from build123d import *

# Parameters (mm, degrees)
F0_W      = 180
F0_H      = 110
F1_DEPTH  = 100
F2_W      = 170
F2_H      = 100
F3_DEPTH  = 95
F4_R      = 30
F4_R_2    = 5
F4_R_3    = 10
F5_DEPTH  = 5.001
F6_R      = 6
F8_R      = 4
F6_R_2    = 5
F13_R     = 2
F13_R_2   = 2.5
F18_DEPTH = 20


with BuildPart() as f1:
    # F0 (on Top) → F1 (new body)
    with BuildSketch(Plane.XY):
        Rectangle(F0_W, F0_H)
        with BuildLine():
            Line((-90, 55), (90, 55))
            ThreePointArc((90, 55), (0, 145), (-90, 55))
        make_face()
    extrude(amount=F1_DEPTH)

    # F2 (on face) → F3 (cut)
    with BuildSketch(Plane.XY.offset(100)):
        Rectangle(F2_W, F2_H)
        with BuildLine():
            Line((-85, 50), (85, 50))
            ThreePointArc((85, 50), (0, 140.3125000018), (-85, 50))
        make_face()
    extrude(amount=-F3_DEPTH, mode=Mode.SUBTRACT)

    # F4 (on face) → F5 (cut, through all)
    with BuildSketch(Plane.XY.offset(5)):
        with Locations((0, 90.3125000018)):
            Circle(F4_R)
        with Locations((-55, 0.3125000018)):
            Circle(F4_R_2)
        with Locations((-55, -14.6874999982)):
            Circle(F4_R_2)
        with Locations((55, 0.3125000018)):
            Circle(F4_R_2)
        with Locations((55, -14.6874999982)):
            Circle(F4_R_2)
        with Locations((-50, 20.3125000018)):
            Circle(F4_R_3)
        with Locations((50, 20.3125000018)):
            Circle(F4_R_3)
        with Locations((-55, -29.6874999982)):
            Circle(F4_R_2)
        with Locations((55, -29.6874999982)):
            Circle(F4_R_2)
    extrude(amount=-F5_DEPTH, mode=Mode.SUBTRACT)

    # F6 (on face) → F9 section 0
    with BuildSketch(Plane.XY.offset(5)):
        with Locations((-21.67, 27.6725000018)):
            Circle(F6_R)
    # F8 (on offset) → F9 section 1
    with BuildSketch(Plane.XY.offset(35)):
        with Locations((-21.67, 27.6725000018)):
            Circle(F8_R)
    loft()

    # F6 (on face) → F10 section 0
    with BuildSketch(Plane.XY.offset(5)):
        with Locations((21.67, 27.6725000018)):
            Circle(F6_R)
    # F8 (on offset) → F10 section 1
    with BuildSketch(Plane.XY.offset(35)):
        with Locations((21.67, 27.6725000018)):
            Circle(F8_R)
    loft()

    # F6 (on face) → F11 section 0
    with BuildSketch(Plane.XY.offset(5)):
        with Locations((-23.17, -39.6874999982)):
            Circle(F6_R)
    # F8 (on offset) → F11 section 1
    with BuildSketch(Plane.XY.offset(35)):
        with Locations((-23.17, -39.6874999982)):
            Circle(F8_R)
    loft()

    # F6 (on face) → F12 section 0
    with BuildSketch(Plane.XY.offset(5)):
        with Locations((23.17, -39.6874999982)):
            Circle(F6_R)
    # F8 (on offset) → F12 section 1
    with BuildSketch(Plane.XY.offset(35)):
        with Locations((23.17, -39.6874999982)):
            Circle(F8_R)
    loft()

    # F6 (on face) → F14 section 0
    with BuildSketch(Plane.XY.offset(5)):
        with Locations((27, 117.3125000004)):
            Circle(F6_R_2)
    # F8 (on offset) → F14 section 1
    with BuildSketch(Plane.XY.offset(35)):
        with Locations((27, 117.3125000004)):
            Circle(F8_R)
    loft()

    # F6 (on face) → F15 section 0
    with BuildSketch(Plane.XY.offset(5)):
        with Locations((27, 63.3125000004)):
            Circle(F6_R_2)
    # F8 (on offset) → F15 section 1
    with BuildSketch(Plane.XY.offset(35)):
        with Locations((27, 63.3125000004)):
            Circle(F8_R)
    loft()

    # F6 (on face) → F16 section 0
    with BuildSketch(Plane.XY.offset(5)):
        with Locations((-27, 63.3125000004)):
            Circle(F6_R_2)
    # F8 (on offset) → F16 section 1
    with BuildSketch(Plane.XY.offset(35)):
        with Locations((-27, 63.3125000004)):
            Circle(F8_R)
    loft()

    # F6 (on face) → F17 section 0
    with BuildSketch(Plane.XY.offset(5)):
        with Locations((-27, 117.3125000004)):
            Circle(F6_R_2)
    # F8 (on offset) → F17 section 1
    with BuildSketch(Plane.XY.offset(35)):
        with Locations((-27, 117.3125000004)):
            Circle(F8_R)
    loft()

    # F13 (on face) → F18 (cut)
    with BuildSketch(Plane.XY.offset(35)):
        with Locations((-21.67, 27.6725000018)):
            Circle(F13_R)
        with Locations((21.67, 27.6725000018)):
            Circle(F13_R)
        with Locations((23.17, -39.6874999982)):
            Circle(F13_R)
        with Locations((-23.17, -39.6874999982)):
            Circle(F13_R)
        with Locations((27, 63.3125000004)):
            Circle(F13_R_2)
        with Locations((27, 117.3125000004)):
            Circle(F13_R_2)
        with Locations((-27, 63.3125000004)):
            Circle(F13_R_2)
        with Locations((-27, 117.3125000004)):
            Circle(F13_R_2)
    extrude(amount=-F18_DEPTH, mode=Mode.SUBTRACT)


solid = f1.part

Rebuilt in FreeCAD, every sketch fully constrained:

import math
import FreeCAD as App
import Part
import Sketcher

V = App.Vector

doc = App.newDocument("Part")
body = doc.addObject("PartDesign::Body", "Body")

# Sketch on XY plane
sketch1 = doc.addObject("Sketcher::SketchObject", "Sketch")
body.addObject(sketch1)
sketch1.AttachmentSupport = (doc.XY_Plane, [""])
sketch1.MapMode = "FlatFace"
sketch1.addGeometry([
    Part.LineSegment(V(-90, 55, 0), V(-90, -55, 0)),
    Part.LineSegment(V(-90, -55, 0), V(90, -55, 0)),
    Part.LineSegment(V(90, -55, 0), V(90, 55, 0)),
    Part.ArcOfCircle(Part.Circle(V(0, 55, 0), V(0, 0, 1), 90), math.radians(0), math.radians(180)),
], False)
sketch1.addConstraint([
    Sketcher.Constraint("Coincident", 0, 2, 1, 1),
    Sketcher.Constraint("Coincident", 1, 2, 2, 1),
    Sketcher.Constraint("Tangent", 2, 2, 3, 1),
    Sketcher.Constraint("Tangent", 3, 2, 0, 1),
    Sketcher.Constraint("Vertical", 0),
    Sketcher.Constraint("Horizontal", 1),
    Sketcher.Constraint("Vertical", 2),
    Sketcher.Constraint("Symmetric", 0, 2, 2, 2, -1, 1),
    Sketcher.Constraint("Radius", 3, 90.0),
    Sketcher.Constraint("DistanceY", 0, 2, 0, 1, 110.0),
])
pad1 = doc.addObject("PartDesign::Pad", "Pad")
body.addObject(pad1)
pad1.Profile = sketch1
pad1.Length = 100

# Sketch on XY plane
sketch2 = doc.addObject("Sketcher::SketchObject", "Sketch001")
body.addObject(sketch2)
sketch2.AttachmentSupport = (doc.XY_Plane, [""])
sketch2.MapMode = "FlatFace"
sketch2.AttachmentOffset = App.Placement(V(0, 0, 100), App.Rotation())
sketch2.addGeometry([
    Part.LineSegment(V(-85, 50, 0), V(-85, -50, 0)),
    Part.LineSegment(V(-85, -50, 0), V(85, -50, 0)),
    Part.LineSegment(V(85, -50, 0), V(85, 50, 0)),
    Part.ArcOfCircle(Part.Circle(V(0, 55.15625, 0), V(0, 0, 1), 85.15625), math.radians(-3.471409), math.radians(183.471409)),
], False)
sketch2.addConstraint([
    Sketcher.Constraint("Coincident", 0, 2, 1, 1),
    Sketcher.Constraint("Coincident", 1, 2, 2, 1),
    Sketcher.Constraint("Coincident", 2, 2, 3, 1),
    Sketcher.Constraint("Coincident", 3, 2, 0, 1),
    Sketcher.Constraint("Vertical", 0),
    Sketcher.Constraint("Horizontal", 1),
    Sketcher.Constraint("Vertical", 2),
    Sketcher.Constraint("Symmetric", 0, 2, 2, 2, -1, 1),
    Sketcher.Constraint("PointOnObject", 3, 3, -2),
    Sketcher.Constraint("DistanceX", 1, 1, 1, 2, 170.0),
    Sketcher.Constraint("DistanceY", 0, 2, 0, 1, 100.0),
    Sketcher.Constraint("Radius", 3, 85.15625),
])
pocket1 = doc.addObject("PartDesign::Pocket", "Pocket")
body.addObject(pocket1)
pocket1.Profile = sketch2
pocket1.Length = 95

# Sketch on XY plane
sketch3 = doc.addObject("Sketcher::SketchObject", "Sketch002")
body.addObject(sketch3)
sketch3.AttachmentSupport = (doc.XY_Plane, [""])
sketch3.MapMode = "FlatFace"
sketch3.AttachmentOffset = App.Placement(V(0, 0, 5), App.Rotation())
sketch3.addGeometry([
    Part.Circle(V(0, 90.3125, 0), V(0, 0, 1), 30),  # 0
    Part.Circle(V(-55, 0.3125, 0), V(0, 0, 1), 5),  # 1
    Part.Circle(V(-55, -14.6875, 0), V(0, 0, 1), 5),  # 2
    Part.Circle(V(55, 0.3125, 0), V(0, 0, 1), 5),  # 3
    Part.Circle(V(55, -14.6875, 0), V(0, 0, 1), 5),  # 4
    Part.Circle(V(-50, 20.3125, 0), V(0, 0, 1), 10),  # 5
    Part.Circle(V(50, 20.3125, 0), V(0, 0, 1), 10),  # 6
    Part.Circle(V(-55, -29.6875, 0), V(0, 0, 1), 5),  # 7
    Part.Circle(V(55, -29.6875, 0), V(0, 0, 1), 5),  # 8
], False)
sketch3.addConstraint([
    Sketcher.Constraint("Equal", 1, 2),
    Sketcher.Constraint("Equal", 2, 3),
    Sketcher.Constraint("Equal", 3, 4),
    Sketcher.Constraint("Equal", 5, 6),
    Sketcher.Constraint("Equal", 4, 7),
    Sketcher.Constraint("Equal", 7, 8),
    Sketcher.Constraint("Symmetric", 1, 3, 3, 3, -2),
    Sketcher.Constraint("Symmetric", 2, 3, 4, 3, -2),
    Sketcher.Constraint("Symmetric", 5, 3, 6, 3, -2),
    Sketcher.Constraint("Symmetric", 7, 3, 8, 3, -2),
    Sketcher.Constraint("PointOnObject", 0, 3, -2),
    Sketcher.Constraint("Vertical", 1, 3, 2, 3),
    Sketcher.Constraint("Vertical", 2, 3, 7, 3),
    Sketcher.Constraint("Diameter", 0, 60.0),
    Sketcher.Constraint("Diameter", 1, 10.0),
    Sketcher.Constraint("Diameter", 5, 20.0),
    Sketcher.Constraint("DistanceX", 1, 3, -1, 1, 55.0),
    Sketcher.Constraint("DistanceX", 5, 3, -1, 1, 50.0),
    Sketcher.Constraint("DistanceY", 1, 3, 0, 3, 90.0),
    Sketcher.Constraint("DistanceY", 2, 3, 1, 3, 15.0),
    Sketcher.Constraint("DistanceY", 1, 3, 5, 3, 20.0),
    Sketcher.Constraint("DistanceY", 7, 3, 2, 3, 15.0),
    Sketcher.Constraint("DistanceY", -1, 1, 0, 3, 90.3125),
])
pocket2 = doc.addObject("PartDesign::Pocket", "Pocket001")
body.addObject(pocket2)
pocket2.Profile = sketch3
pocket2.Type = "ThroughAll"

# Sketch on XY plane
sketch4 = doc.addObject("Sketcher::SketchObject", "Sketch003")
body.addObject(sketch4)
sketch4.AttachmentSupport = (doc.XY_Plane, [""])
sketch4.MapMode = "FlatFace"
sketch4.AttachmentOffset = App.Placement(V(0, 0, 5), App.Rotation())
sketch4.addGeometry(Part.Circle(V(-21.67, 27.6725, 0), V(0, 0, 1), 6), False)
sketch4.addConstraint([
    Sketcher.Constraint("Diameter", 0, 12.0),
    Sketcher.Constraint("DistanceX", 0, 3, -1, 1, 21.67),
    Sketcher.Constraint("DistanceY", -1, 1, 0, 3, 27.6725),
])

# Sketch on XY plane
sketch5 = doc.addObject("Sketcher::SketchObject", "Sketch004")
body.addObject(sketch5)
sketch5.AttachmentSupport = (doc.XY_Plane, [""])
sketch5.MapMode = "FlatFace"
sketch5.AttachmentOffset = App.Placement(V(0, 0, 35), App.Rotation())
sketch5.addGeometry(Part.Circle(V(-21.67, 27.6725, 0), V(0, 0, 1), 4), False)
sketch5.addConstraint([
    Sketcher.Constraint("Diameter", 0, 8.0),
    Sketcher.Constraint("DistanceX", 0, 3, -1, 1, 21.67),
    Sketcher.Constraint("DistanceY", -1, 1, 0, 3, 27.6725),
])

additiveloft = doc.addObject("PartDesign::AdditiveLoft", "AdditiveLoft")
body.addObject(additiveloft)
additiveloft.Profile = sketch4
additiveloft.Sections = [sketch5]

# Sketch on XY plane
sketch6 = doc.addObject("Sketcher::SketchObject", "Sketch005")
body.addObject(sketch6)
sketch6.AttachmentSupport = (doc.XY_Plane, [""])
sketch6.MapMode = "FlatFace"
sketch6.AttachmentOffset = App.Placement(V(0, 0, 5), App.Rotation())
sketch6.addGeometry(Part.Circle(V(21.67, 27.6725, 0), V(0, 0, 1), 6), False)
sketch6.addConstraint([
    Sketcher.Constraint("Diameter", 0, 12.0),
    Sketcher.Constraint("DistanceX", -1, 1, 0, 3, 21.67),
    Sketcher.Constraint("DistanceY", -1, 1, 0, 3, 27.6725),
])

# Sketch on XY plane
sketch7 = doc.addObject("Sketcher::SketchObject", "Sketch006")
body.addObject(sketch7)
sketch7.AttachmentSupport = (doc.XY_Plane, [""])
sketch7.MapMode = "FlatFace"
sketch7.AttachmentOffset = App.Placement(V(0, 0, 35), App.Rotation())
sketch7.addGeometry(Part.Circle(V(21.67, 27.6725, 0), V(0, 0, 1), 4), False)
sketch7.addConstraint([
    Sketcher.Constraint("Diameter", 0, 8.0),
    Sketcher.Constraint("DistanceX", -1, 1, 0, 3, 21.67),
    Sketcher.Constraint("DistanceY", -1, 1, 0, 3, 27.6725),
])

additiveloft2 = doc.addObject("PartDesign::AdditiveLoft", "AdditiveLoft001")
body.addObject(additiveloft2)
additiveloft2.Profile = sketch6
additiveloft2.Sections = [sketch7]

# Sketch on XY plane
sketch8 = doc.addObject("Sketcher::SketchObject", "Sketch007")
body.addObject(sketch8)
sketch8.AttachmentSupport = (doc.XY_Plane, [""])
sketch8.MapMode = "FlatFace"
sketch8.AttachmentOffset = App.Placement(V(0, 0, 5), App.Rotation())
sketch8.addGeometry(Part.Circle(V(-23.17, -39.6875, 0), V(0, 0, 1), 6), False)
sketch8.addConstraint([
    Sketcher.Constraint("Diameter", 0, 12.0),
    Sketcher.Constraint("DistanceX", 0, 3, -1, 1, 23.17),
    Sketcher.Constraint("DistanceY", 0, 3, -1, 1, 39.6875),
])

# Sketch on XY plane
sketch9 = doc.addObject("Sketcher::SketchObject", "Sketch008")
body.addObject(sketch9)
sketch9.AttachmentSupport = (doc.XY_Plane, [""])
sketch9.MapMode = "FlatFace"
sketch9.AttachmentOffset = App.Placement(V(0, 0, 35), App.Rotation())
sketch9.addGeometry(Part.Circle(V(-23.17, -39.6875, 0), V(0, 0, 1), 4), False)
sketch9.addConstraint([
    Sketcher.Constraint("Diameter", 0, 8.0),
    Sketcher.Constraint("DistanceX", 0, 3, -1, 1, 23.17),
    Sketcher.Constraint("DistanceY", 0, 3, -1, 1, 39.6875),
])

additiveloft3 = doc.addObject("PartDesign::AdditiveLoft", "AdditiveLoft002")
body.addObject(additiveloft3)
additiveloft3.Profile = sketch8
additiveloft3.Sections = [sketch9]

# Sketch on XY plane
sketch10 = doc.addObject("Sketcher::SketchObject", "Sketch009")
body.addObject(sketch10)
sketch10.AttachmentSupport = (doc.XY_Plane, [""])
sketch10.MapMode = "FlatFace"
sketch10.AttachmentOffset = App.Placement(V(0, 0, 5), App.Rotation())
sketch10.addGeometry(Part.Circle(V(23.17, -39.6875, 0), V(0, 0, 1), 6), False)
sketch10.addConstraint([
    Sketcher.Constraint("Diameter", 0, 12.0),
    Sketcher.Constraint("DistanceX", -1, 1, 0, 3, 23.17),
    Sketcher.Constraint("DistanceY", 0, 3, -1, 1, 39.6875),
])

# Sketch on XY plane
sketch11 = doc.addObject("Sketcher::SketchObject", "Sketch010")
body.addObject(sketch11)
sketch11.AttachmentSupport = (doc.XY_Plane, [""])
sketch11.MapMode = "FlatFace"
sketch11.AttachmentOffset = App.Placement(V(0, 0, 35), App.Rotation())
sketch11.addGeometry(Part.Circle(V(23.17, -39.6875, 0), V(0, 0, 1), 4), False)
sketch11.addConstraint([
    Sketcher.Constraint("Diameter", 0, 8.0),
    Sketcher.Constraint("DistanceX", -1, 1, 0, 3, 23.17),
    Sketcher.Constraint("DistanceY", 0, 3, -1, 1, 39.6875),
])

additiveloft4 = doc.addObject("PartDesign::AdditiveLoft", "AdditiveLoft003")
body.addObject(additiveloft4)
additiveloft4.Profile = sketch10
additiveloft4.Sections = [sketch11]

# Sketch on XY plane
sketch12 = doc.addObject("Sketcher::SketchObject", "Sketch011")
body.addObject(sketch12)
sketch12.AttachmentSupport = (doc.XY_Plane, [""])
sketch12.MapMode = "FlatFace"
sketch12.AttachmentOffset = App.Placement(V(0, 0, 5), App.Rotation())
sketch12.addGeometry(Part.Circle(V(27, 117.3125, 0), V(0, 0, 1), 5), False)
sketch12.addConstraint([
    Sketcher.Constraint("Diameter", 0, 10.0),
    Sketcher.Constraint("DistanceX", -1, 1, 0, 3, 27.0),
    Sketcher.Constraint("DistanceY", -1, 1, 0, 3, 117.3125),
])

# Sketch on XY plane
sketch13 = doc.addObject("Sketcher::SketchObject", "Sketch012")
body.addObject(sketch13)
sketch13.AttachmentSupport = (doc.XY_Plane, [""])
sketch13.MapMode = "FlatFace"
sketch13.AttachmentOffset = App.Placement(V(0, 0, 35), App.Rotation())
sketch13.addGeometry(Part.Circle(V(27, 117.3125, 0), V(0, 0, 1), 4), False)
sketch13.addConstraint([
    Sketcher.Constraint("Diameter", 0, 8.0),
    Sketcher.Constraint("DistanceX", -1, 1, 0, 3, 27.0),
    Sketcher.Constraint("DistanceY", -1, 1, 0, 3, 117.3125),
])

additiveloft5 = doc.addObject("PartDesign::AdditiveLoft", "AdditiveLoft004")
body.addObject(additiveloft5)
additiveloft5.Profile = sketch12
additiveloft5.Sections = [sketch13]

# Sketch on XY plane
sketch14 = doc.addObject("Sketcher::SketchObject", "Sketch013")
body.addObject(sketch14)
sketch14.AttachmentSupport = (doc.XY_Plane, [""])
sketch14.MapMode = "FlatFace"
sketch14.AttachmentOffset = App.Placement(V(0, 0, 5), App.Rotation())
sketch14.addGeometry(Part.Circle(V(27, 63.3125, 0), V(0, 0, 1), 5), False)
sketch14.addConstraint([
    Sketcher.Constraint("Diameter", 0, 10.0),
    Sketcher.Constraint("DistanceX", -1, 1, 0, 3, 27.0),
    Sketcher.Constraint("DistanceY", -1, 1, 0, 3, 63.3125),
])

# Sketch on XY plane
sketch15 = doc.addObject("Sketcher::SketchObject", "Sketch014")
body.addObject(sketch15)
sketch15.AttachmentSupport = (doc.XY_Plane, [""])
sketch15.MapMode = "FlatFace"
sketch15.AttachmentOffset = App.Placement(V(0, 0, 35), App.Rotation())
sketch15.addGeometry(Part.Circle(V(27, 63.3125, 0), V(0, 0, 1), 4), False)
sketch15.addConstraint([
    Sketcher.Constraint("Diameter", 0, 8.0),
    Sketcher.Constraint("DistanceX", -1, 1, 0, 3, 27.0),
    Sketcher.Constraint("DistanceY", -1, 1, 0, 3, 63.3125),
])

additiveloft6 = doc.addObject("PartDesign::AdditiveLoft", "AdditiveLoft005")
body.addObject(additiveloft6)
additiveloft6.Profile = sketch14
additiveloft6.Sections = [sketch15]

# Sketch on XY plane
sketch16 = doc.addObject("Sketcher::SketchObject", "Sketch015")
body.addObject(sketch16)
sketch16.AttachmentSupport = (doc.XY_Plane, [""])
sketch16.MapMode = "FlatFace"
sketch16.AttachmentOffset = App.Placement(V(0, 0, 5), App.Rotation())
sketch16.addGeometry(Part.Circle(V(-27, 63.3125, 0), V(0, 0, 1), 5), False)
sketch16.addConstraint([
    Sketcher.Constraint("Diameter", 0, 10.0),
    Sketcher.Constraint("DistanceX", 0, 3, -1, 1, 27.0),
    Sketcher.Constraint("DistanceY", -1, 1, 0, 3, 63.3125),
])

# Sketch on XY plane
sketch17 = doc.addObject("Sketcher::SketchObject", "Sketch016")
body.addObject(sketch17)
sketch17.AttachmentSupport = (doc.XY_Plane, [""])
sketch17.MapMode = "FlatFace"
sketch17.AttachmentOffset = App.Placement(V(0, 0, 35), App.Rotation())
sketch17.addGeometry(Part.Circle(V(-27, 63.3125, 0), V(0, 0, 1), 4), False)
sketch17.addConstraint([
    Sketcher.Constraint("Diameter", 0, 8.0),
    Sketcher.Constraint("DistanceX", 0, 3, -1, 1, 27.0),
    Sketcher.Constraint("DistanceY", -1, 1, 0, 3, 63.3125),
])

additiveloft7 = doc.addObject("PartDesign::AdditiveLoft", "AdditiveLoft006")
body.addObject(additiveloft7)
additiveloft7.Profile = sketch16
additiveloft7.Sections = [sketch17]

# Sketch on XY plane
sketch18 = doc.addObject("Sketcher::SketchObject", "Sketch017")
body.addObject(sketch18)
sketch18.AttachmentSupport = (doc.XY_Plane, [""])
sketch18.MapMode = "FlatFace"
sketch18.AttachmentOffset = App.Placement(V(0, 0, 5), App.Rotation())
sketch18.addGeometry(Part.Circle(V(-27, 117.3125, 0), V(0, 0, 1), 5), False)
sketch18.addConstraint([
    Sketcher.Constraint("Diameter", 0, 10.0),
    Sketcher.Constraint("DistanceX", 0, 3, -1, 1, 27.0),
    Sketcher.Constraint("DistanceY", -1, 1, 0, 3, 117.3125),
])

# Sketch on XY plane
sketch19 = doc.addObject("Sketcher::SketchObject", "Sketch018")
body.addObject(sketch19)
sketch19.AttachmentSupport = (doc.XY_Plane, [""])
sketch19.MapMode = "FlatFace"
sketch19.AttachmentOffset = App.Placement(V(0, 0, 35), App.Rotation())
sketch19.addGeometry(Part.Circle(V(-27, 117.3125, 0), V(0, 0, 1), 4), False)
sketch19.addConstraint([
    Sketcher.Constraint("Diameter", 0, 8.0),
    Sketcher.Constraint("DistanceX", 0, 3, -1, 1, 27.0),
    Sketcher.Constraint("DistanceY", -1, 1, 0, 3, 117.3125),
])

additiveloft8 = doc.addObject("PartDesign::AdditiveLoft", "AdditiveLoft007")
body.addObject(additiveloft8)
additiveloft8.Profile = sketch18
additiveloft8.Sections = [sketch19]

# Sketch on XY plane
sketch20 = doc.addObject("Sketcher::SketchObject", "Sketch019")
body.addObject(sketch20)
sketch20.AttachmentSupport = (doc.XY_Plane, [""])
sketch20.MapMode = "FlatFace"
sketch20.AttachmentOffset = App.Placement(V(0, 0, 35), App.Rotation())
sketch20.addGeometry([
    Part.Circle(V(-21.67, 27.6725, 0), V(0, 0, 1), 2),  # 0
    Part.Circle(V(21.67, 27.6725, 0), V(0, 0, 1), 2),  # 1
    Part.Circle(V(23.17, -39.6875, 0), V(0, 0, 1), 2),  # 2
    Part.Circle(V(-23.17, -39.6875, 0), V(0, 0, 1), 2),  # 3
    Part.Circle(V(27, 63.3125, 0), V(0, 0, 1), 2.5),  # 4
    Part.Circle(V(27, 117.3125, 0), V(0, 0, 1), 2.5),  # 5
    Part.Circle(V(-27, 63.3125, 0), V(0, 0, 1), 2.5),  # 6
    Part.Circle(V(-27, 117.3125, 0), V(0, 0, 1), 2.5),  # 7
], False)
sketch20.addConstraint([
    Sketcher.Constraint("Equal", 0, 1),
    Sketcher.Constraint("Equal", 1, 2),
    Sketcher.Constraint("Equal", 2, 3),
    Sketcher.Constraint("Equal", 4, 5),
    Sketcher.Constraint("Equal", 5, 6),
    Sketcher.Constraint("Equal", 6, 7),
    Sketcher.Constraint("Symmetric", 0, 3, 1, 3, -2),
    Sketcher.Constraint("Symmetric", 2, 3, 3, 3, -2),
    Sketcher.Constraint("Symmetric", 4, 3, 6, 3, -2),
    Sketcher.Constraint("Symmetric", 5, 3, 7, 3, -2),
    Sketcher.Constraint("Vertical", 4, 3, 5, 3),
    Sketcher.Constraint("Diameter", 0, 4.0),
    Sketcher.Constraint("Diameter", 4, 5.0),
    Sketcher.Constraint("DistanceX", -1, 1, 4, 3, 27.0),
    Sketcher.Constraint("DistanceY", 2, 3, 4, 3, 103.0),
    Sketcher.Constraint("DistanceY", 4, 3, 5, 3, 54.0),
    Sketcher.Constraint("DistanceX", 1, 3, 2, 3, 1.5),
    Sketcher.Constraint("DistanceX", 0, 3, -1, 1, 21.67),
    Sketcher.Constraint("DistanceY", 2, 3, 1, 3, 67.36),
    Sketcher.Constraint("DistanceY", -1, 1, 0, 3, 27.6725),
])
pocket3 = doc.addObject("PartDesign::Pocket", "Pocket002")
body.addObject(pocket3)
pocket3.Profile = sketch20
pocket3.Length = 20

doc.recompute()
